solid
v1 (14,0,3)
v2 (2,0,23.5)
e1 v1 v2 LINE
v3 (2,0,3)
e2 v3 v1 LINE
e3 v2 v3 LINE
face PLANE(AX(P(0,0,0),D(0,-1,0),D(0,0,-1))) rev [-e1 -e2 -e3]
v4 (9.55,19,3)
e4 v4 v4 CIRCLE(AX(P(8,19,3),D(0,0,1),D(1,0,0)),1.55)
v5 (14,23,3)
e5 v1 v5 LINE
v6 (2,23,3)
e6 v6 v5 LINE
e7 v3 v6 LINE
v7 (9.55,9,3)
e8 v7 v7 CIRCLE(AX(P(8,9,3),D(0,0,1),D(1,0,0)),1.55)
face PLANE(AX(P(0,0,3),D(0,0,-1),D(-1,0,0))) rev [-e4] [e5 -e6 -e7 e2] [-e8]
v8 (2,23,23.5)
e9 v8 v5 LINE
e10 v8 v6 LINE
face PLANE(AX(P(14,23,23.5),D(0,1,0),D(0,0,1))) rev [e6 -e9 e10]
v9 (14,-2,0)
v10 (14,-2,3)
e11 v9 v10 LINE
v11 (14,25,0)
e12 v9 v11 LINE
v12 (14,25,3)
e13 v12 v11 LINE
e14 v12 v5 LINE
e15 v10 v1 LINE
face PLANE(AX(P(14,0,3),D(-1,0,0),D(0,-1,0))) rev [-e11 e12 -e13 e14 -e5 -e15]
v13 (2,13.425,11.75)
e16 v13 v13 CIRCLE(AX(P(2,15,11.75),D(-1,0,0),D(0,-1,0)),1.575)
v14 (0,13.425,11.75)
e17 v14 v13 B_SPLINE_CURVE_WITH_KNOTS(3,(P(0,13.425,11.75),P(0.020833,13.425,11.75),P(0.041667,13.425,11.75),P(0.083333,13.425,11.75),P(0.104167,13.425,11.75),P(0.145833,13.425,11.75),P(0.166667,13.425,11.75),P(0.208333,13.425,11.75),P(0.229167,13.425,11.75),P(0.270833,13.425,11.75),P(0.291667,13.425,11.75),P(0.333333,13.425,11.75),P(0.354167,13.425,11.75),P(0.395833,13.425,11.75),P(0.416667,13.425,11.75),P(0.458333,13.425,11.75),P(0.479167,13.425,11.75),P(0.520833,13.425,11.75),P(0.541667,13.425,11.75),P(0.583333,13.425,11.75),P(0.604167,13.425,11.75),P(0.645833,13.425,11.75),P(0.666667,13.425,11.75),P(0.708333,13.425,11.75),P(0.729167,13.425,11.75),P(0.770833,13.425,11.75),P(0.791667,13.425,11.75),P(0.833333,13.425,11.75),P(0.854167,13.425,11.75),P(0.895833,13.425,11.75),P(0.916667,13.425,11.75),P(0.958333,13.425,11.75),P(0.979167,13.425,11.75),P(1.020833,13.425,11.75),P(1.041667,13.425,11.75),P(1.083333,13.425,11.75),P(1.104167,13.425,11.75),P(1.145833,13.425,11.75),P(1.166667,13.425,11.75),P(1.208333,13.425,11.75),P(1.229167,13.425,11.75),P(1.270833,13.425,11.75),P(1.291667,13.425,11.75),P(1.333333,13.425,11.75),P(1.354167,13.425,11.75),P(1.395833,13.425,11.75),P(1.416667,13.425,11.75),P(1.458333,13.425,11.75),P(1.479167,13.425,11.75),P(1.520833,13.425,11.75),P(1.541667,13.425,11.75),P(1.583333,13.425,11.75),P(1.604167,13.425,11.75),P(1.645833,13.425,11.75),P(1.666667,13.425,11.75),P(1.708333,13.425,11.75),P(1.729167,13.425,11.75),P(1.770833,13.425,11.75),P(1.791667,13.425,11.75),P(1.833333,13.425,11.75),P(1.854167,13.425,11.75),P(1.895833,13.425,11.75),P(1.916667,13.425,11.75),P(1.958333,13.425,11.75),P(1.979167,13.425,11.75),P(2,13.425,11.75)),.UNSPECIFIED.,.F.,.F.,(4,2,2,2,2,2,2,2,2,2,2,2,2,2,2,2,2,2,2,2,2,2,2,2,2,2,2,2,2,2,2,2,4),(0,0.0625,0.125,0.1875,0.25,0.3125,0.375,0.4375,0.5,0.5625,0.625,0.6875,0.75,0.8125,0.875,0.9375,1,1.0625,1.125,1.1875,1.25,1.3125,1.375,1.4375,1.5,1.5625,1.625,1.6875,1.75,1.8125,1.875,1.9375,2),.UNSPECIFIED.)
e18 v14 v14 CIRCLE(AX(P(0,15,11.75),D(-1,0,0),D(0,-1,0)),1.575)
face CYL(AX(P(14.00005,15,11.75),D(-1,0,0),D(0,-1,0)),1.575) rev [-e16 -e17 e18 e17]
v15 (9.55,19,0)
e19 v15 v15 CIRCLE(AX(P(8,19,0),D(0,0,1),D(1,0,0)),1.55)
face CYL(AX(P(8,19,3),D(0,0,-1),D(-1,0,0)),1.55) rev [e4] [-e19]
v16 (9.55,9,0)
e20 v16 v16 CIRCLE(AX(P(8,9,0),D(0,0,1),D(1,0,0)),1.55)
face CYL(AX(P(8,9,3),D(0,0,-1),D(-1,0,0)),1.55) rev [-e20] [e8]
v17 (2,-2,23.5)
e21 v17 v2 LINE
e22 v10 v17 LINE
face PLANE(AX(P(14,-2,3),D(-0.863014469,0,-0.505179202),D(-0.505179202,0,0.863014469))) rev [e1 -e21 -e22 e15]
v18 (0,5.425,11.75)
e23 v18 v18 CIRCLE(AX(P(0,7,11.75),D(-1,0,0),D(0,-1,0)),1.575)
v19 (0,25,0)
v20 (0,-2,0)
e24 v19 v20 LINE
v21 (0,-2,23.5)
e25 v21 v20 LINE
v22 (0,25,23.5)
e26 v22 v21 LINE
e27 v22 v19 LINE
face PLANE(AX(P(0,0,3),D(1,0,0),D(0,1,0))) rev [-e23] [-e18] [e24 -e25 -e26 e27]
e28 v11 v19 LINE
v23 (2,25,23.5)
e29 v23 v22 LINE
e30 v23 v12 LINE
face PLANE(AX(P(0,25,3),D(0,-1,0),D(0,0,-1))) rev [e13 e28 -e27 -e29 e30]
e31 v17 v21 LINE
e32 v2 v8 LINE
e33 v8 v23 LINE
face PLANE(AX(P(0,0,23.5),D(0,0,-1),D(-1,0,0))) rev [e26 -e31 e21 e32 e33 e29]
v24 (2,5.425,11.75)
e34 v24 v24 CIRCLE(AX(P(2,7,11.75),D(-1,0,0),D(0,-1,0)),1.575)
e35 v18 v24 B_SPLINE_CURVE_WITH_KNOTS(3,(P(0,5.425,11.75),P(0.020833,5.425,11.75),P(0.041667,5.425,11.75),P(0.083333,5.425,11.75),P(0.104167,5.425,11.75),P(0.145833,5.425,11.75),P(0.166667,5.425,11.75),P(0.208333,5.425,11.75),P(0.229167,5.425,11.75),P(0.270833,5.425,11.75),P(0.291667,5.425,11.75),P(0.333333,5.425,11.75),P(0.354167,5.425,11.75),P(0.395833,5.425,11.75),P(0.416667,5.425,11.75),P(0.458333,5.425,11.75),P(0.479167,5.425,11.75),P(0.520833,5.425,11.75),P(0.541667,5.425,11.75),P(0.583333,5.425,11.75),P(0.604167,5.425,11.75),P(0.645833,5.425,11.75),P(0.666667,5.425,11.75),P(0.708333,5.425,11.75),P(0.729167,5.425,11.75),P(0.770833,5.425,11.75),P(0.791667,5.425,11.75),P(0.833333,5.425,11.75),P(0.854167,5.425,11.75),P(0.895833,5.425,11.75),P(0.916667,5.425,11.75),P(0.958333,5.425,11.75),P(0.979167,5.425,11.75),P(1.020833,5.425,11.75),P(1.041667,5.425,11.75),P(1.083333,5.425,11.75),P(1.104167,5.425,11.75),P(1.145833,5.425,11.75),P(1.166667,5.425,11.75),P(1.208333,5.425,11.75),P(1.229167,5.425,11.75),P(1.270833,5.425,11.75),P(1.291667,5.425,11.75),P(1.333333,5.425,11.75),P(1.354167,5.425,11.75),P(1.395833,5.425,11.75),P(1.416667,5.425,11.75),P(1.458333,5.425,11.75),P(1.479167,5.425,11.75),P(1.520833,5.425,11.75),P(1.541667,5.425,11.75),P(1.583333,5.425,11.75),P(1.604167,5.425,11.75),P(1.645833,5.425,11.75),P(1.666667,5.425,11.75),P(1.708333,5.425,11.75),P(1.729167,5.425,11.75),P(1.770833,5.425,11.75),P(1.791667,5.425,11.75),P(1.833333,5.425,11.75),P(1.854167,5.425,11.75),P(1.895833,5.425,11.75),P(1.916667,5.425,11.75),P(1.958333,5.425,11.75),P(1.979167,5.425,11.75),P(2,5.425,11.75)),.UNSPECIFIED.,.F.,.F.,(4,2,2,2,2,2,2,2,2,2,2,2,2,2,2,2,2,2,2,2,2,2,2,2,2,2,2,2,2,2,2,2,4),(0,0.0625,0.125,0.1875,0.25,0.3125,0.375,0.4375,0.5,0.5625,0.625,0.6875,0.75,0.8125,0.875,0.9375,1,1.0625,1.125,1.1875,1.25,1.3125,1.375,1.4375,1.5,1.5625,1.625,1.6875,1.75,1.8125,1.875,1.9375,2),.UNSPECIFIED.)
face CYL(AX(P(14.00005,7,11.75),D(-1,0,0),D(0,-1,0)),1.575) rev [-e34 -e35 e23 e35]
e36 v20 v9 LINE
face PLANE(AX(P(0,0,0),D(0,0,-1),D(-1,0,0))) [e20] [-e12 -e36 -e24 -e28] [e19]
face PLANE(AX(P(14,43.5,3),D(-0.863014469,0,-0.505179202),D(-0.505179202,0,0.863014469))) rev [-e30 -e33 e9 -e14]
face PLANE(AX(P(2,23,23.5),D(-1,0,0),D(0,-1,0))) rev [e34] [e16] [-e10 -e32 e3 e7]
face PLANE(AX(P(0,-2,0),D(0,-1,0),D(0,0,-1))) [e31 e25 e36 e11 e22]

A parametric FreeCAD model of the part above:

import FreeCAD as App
import Part
import Sketcher


def add_polygon(sketch, points):
    """Adds a closed chain of lines whose ends are joined by coincident constraints."""
    first, n = sketch.GeometryCount, len(points)
    for a, b in zip(points, points[1:] + points[:1]):
        sketch.addGeometry(Part.LineSegment(App.Vector(*a, 0), App.Vector(*b, 0)), False)
    for i in range(n):
        sketch.addConstraint(Sketcher.Constraint("Coincident", first + i, 2, first + (i + 1) % n, 1))

doc = App.newDocument("Part")
params = doc.addObject("Spreadsheet::Sheet", "Params")
for row, (alias, value) in enumerate([
    ("sketch1_diameter", "3.1 mm"),
    ("sketch1_width", "14 mm"),
    ("sketch1_height", "25 mm"),
    ("pad1_length", "3 mm"),
    ("sketch2_width", "2 mm"),
    ("sketch2_width2", "12 mm"),
    ("sketch2_height", "25 mm"),
    ("pad2_length", "20.5 mm"),
    ("sketch3_diameter", "3.15 mm"),
    ("sketch4_width", "12 mm"),
    ("sketch4_height", "20.5 mm"),
    ("pocket2_length", "20.5 mm"),
    ("sketch5_width", "2 mm"),
    ("sketch5_width2", "14 mm"),
    ("sketch5_height", "3 mm"),
    ("sketch5_height2", "23.5 mm"),
    ("pad3_length", "2 mm"),
], start=1):
    params.set(f"A{row}", alias)
    params.set(f"B{row}", "=" + value)
    params.setAlias(f"B{row}", alias)

body = doc.addObject("PartDesign::Body", "Body")

# Sketch on XY plane
sketch1 = body.newObject("Sketcher::SketchObject", "Sketch")
sketch1.AttachmentSupport = (doc.getObject("XY_Plane"), [""])
sketch1.MapMode = "FlatFace"
add_polygon(sketch1, [(0, 25), (0, 0), (14, 0), (14, 25)])  # lines 0-3
sketch1.addGeometry(Part.Circle(App.Vector(8, 9, 0), App.Vector(0, 0, 1), 1.6), False)  # 4
sketch1.addGeometry(Part.Circle(App.Vector(8, 19, 0), App.Vector(0, 0, 1), 1.6), False)  # 5
sketch1.addConstraint([
    Sketcher.Constraint("Vertical", 0),
    Sketcher.Constraint("Horizontal", 1),
    Sketcher.Constraint("Vertical", 2),
    Sketcher.Constraint("Horizontal", 3),
    Sketcher.Constraint("Coincident", 0, 2, -1, 1),
    Sketcher.Constraint("Equal", 4, 5),
    Sketcher.Constraint("Vertical", 4, 3, 5, 3),
    Sketcher.Constraint("Diameter", 4, 3.1),
    Sketcher.Constraint("DistanceX", 1, 1, 1, 2, 14.0),
    Sketcher.Constraint("DistanceY", 0, 2, 0, 1, 25.0),
    Sketcher.Constraint("DistanceX", -1, 1, 4, 3, 8.0),
    Sketcher.Constraint("DistanceY", -1, 1, 4, 3, 9.0),
    Sketcher.Constraint("DistanceY", -1, 1, 5, 3, 19.0),
])
sketch1.setExpression("Constraints[11]", "Params.sketch1_diameter")
sketch1.setExpression("Constraints[12]", "Params.sketch1_width")
sketch1.setExpression("Constraints[13]", "Params.sketch1_height")
pad1 = body.newObject("PartDesign::Pad", "Pad")
pad1.Profile = sketch1
pad1.setExpression("Length", "Params.pad1_length")

# Sketch on XY plane
sketch2 = body.newObject("Sketcher::SketchObject", "Sketch001")
sketch2.AttachmentSupport = (doc.getObject("XY_Plane"), [""])
sketch2.MapMode = "FlatFace"
sketch2.AttachmentOffset = App.Placement(App.Vector(0, 0, 3), App.Rotation())
add_polygon(sketch2, [(0, 25), (0, 0), (2, 0), (2, 23), (14, 23), (14, 25)])  # lines 0-5
sketch2.addConstraint([
    Sketcher.Constraint("Vertical", 0),
    Sketcher.Constraint("Horizontal", 1),
    Sketcher.Constraint("Vertical", 2),
    Sketcher.Constraint("Horizontal", 3),
    Sketcher.Constraint("Vertical", 4),
    Sketcher.Constraint("Horizontal", 5),
    Sketcher.Constraint("Coincident", 0, 2, -1, 1),
    Sketcher.Constraint("Equal", 1, 4),
    Sketcher.Constraint("DistanceX", 1, 1, 1, 2, 2.0),
    Sketcher.Constraint("DistanceX", 3, 1, 3, 2, 12.0),
    Sketcher.Constraint("DistanceY", 0, 2, 0, 1, 25.0),
])
sketch2.setExpression("Constraints[14]", "Params.sketch2_width")
sketch2.setExpression("Constraints[15]", "Params.sketch2_width2")
sketch2.setExpression("Constraints[16]", "Params.sketch2_height")
pad2 = body.newObject("PartDesign::Pad", "Pad001")
pad2.Profile = sketch2
pad2.setExpression("Length", "Params.pad2_length")

# Sketch on YZ plane
sketch3 = body.newObject("Sketcher::SketchObject", "Sketch002")
sketch3.AttachmentSupport = (doc.getObject("YZ_Plane"), [""])
sketch3.MapMode = "FlatFace"
sketch3.addGeometry([
    Part.Circle(App.Vector(15, 11.8, 0), App.Vector(0, 0, 1), 1.6),
    Part.Circle(App.Vector(7, 11.8, 0), App.Vector(0, 0, 1), 1.6),
], False)
sketch3.addConstraint([
    Sketcher.Constraint("Equal", 0, 1),
    Sketcher.Constraint("Horizontal", 0, 3, 1, 3),
    Sketcher.Constraint("Diameter", 0, 3.15),
    Sketcher.Constraint("DistanceX", -1, 1, 0, 3, 15.0),
    Sketcher.Constraint("DistanceX", -1, 1, 1, 3, 7.0),
    Sketcher.Constraint("DistanceY", -1, 1, 0, 3, 11.75),
])
sketch3.setExpression("Constraints[2]", "Params.sketch3_diameter")
pocket1 = body.newObject("PartDesign::Pocket", "Pocket")
pocket1.Profile = sketch3
pocket1.Type = "ThroughAll"
pocket1.Reversed = True

# Sketch on XZ plane
sketch4 = body.newObject("Sketcher::SketchObject", "Sketch003")
sketch4.AttachmentSupport = (doc.getObject("XZ_Plane"), [""])
sketch4.MapMode = "FlatFace"
sketch4.AttachmentOffset = App.Placement(App.Vector(0, 0, -23), App.Rotation())
add_polygon(sketch4, [(2, 24), (14, 3), (14, 24)])  # lines 0-2
sketch4.addConstraint([
    Sketcher.Constraint("Vertical", 1),
    Sketcher.Constraint("Horizontal", 2),
    Sketcher.Constraint("DistanceX", 2, 2, 2, 1, 12.0),
    Sketcher.Constraint("DistanceY", 1, 1, 1, 2, 20.5),
    Sketcher.Constraint("DistanceX", -1, 1, 0, 2, 14.0),
    Sketcher.Constraint("DistanceY", -1, 1, 0, 2, 3.0),
])
sketch4.setExpression("Constraints[5]", "Params.sketch4_width")
sketch4.setExpression("Constraints[6]", "Params.sketch4_height")
pocket2 = body.newObject("PartDesign::Pocket", "Pocket001")
pocket2.Profile = sketch4
pocket2.setExpression("Length", "Params.pocket2_length")

# Sketch on XZ plane
sketch5 = body.newObject("Sketcher::SketchObject", "Sketch004")
sketch5.AttachmentSupport = (doc.getObject("XZ_Plane"), [""])
sketch5.MapMode = "FlatFace"
add_polygon(sketch5, [(14, 0), (14, 3), (2, 23.5), (0, 23.5), (0, 0)])  # lines 0-4
sketch5.addConstraint([
    Sketcher.Constraint("Vertical", 0),
    Sketcher.Constraint("Horizontal", 2),
    Sketcher.Constraint("Vertical", 3),
    Sketcher.Constraint("Horizontal", 4),
    Sketcher.Constraint("Coincident", 3, 2, -1, 1),
    Sketcher.Constraint("DistanceX", 2, 2, 2, 1, 2.0),
    Sketcher.Constraint("DistanceX", 4, 1, 4, 2, 14.0),
    Sketcher.Constraint("DistanceY", 0, 1, 0, 2, 3.0),
    Sketcher.Constraint("DistanceY", 3, 2, 3, 1, 23.5),
])
sketch5.setExpression("Constraints[10]", "Params.sketch5_width")
sketch5.setExpression("Constraints[11]", "Params.sketch5_width2")
sketch5.setExpression("Constraints[12]", "Params.sketch5_height")
sketch5.setExpression("Constraints[13]", "Params.sketch5_height2")
pad3 = body.newObject("PartDesign::Pad", "Pad002")
pad3.Profile = sketch5
pad3.setExpression("Length", "Params.pad3_length")

doc.recompute()
